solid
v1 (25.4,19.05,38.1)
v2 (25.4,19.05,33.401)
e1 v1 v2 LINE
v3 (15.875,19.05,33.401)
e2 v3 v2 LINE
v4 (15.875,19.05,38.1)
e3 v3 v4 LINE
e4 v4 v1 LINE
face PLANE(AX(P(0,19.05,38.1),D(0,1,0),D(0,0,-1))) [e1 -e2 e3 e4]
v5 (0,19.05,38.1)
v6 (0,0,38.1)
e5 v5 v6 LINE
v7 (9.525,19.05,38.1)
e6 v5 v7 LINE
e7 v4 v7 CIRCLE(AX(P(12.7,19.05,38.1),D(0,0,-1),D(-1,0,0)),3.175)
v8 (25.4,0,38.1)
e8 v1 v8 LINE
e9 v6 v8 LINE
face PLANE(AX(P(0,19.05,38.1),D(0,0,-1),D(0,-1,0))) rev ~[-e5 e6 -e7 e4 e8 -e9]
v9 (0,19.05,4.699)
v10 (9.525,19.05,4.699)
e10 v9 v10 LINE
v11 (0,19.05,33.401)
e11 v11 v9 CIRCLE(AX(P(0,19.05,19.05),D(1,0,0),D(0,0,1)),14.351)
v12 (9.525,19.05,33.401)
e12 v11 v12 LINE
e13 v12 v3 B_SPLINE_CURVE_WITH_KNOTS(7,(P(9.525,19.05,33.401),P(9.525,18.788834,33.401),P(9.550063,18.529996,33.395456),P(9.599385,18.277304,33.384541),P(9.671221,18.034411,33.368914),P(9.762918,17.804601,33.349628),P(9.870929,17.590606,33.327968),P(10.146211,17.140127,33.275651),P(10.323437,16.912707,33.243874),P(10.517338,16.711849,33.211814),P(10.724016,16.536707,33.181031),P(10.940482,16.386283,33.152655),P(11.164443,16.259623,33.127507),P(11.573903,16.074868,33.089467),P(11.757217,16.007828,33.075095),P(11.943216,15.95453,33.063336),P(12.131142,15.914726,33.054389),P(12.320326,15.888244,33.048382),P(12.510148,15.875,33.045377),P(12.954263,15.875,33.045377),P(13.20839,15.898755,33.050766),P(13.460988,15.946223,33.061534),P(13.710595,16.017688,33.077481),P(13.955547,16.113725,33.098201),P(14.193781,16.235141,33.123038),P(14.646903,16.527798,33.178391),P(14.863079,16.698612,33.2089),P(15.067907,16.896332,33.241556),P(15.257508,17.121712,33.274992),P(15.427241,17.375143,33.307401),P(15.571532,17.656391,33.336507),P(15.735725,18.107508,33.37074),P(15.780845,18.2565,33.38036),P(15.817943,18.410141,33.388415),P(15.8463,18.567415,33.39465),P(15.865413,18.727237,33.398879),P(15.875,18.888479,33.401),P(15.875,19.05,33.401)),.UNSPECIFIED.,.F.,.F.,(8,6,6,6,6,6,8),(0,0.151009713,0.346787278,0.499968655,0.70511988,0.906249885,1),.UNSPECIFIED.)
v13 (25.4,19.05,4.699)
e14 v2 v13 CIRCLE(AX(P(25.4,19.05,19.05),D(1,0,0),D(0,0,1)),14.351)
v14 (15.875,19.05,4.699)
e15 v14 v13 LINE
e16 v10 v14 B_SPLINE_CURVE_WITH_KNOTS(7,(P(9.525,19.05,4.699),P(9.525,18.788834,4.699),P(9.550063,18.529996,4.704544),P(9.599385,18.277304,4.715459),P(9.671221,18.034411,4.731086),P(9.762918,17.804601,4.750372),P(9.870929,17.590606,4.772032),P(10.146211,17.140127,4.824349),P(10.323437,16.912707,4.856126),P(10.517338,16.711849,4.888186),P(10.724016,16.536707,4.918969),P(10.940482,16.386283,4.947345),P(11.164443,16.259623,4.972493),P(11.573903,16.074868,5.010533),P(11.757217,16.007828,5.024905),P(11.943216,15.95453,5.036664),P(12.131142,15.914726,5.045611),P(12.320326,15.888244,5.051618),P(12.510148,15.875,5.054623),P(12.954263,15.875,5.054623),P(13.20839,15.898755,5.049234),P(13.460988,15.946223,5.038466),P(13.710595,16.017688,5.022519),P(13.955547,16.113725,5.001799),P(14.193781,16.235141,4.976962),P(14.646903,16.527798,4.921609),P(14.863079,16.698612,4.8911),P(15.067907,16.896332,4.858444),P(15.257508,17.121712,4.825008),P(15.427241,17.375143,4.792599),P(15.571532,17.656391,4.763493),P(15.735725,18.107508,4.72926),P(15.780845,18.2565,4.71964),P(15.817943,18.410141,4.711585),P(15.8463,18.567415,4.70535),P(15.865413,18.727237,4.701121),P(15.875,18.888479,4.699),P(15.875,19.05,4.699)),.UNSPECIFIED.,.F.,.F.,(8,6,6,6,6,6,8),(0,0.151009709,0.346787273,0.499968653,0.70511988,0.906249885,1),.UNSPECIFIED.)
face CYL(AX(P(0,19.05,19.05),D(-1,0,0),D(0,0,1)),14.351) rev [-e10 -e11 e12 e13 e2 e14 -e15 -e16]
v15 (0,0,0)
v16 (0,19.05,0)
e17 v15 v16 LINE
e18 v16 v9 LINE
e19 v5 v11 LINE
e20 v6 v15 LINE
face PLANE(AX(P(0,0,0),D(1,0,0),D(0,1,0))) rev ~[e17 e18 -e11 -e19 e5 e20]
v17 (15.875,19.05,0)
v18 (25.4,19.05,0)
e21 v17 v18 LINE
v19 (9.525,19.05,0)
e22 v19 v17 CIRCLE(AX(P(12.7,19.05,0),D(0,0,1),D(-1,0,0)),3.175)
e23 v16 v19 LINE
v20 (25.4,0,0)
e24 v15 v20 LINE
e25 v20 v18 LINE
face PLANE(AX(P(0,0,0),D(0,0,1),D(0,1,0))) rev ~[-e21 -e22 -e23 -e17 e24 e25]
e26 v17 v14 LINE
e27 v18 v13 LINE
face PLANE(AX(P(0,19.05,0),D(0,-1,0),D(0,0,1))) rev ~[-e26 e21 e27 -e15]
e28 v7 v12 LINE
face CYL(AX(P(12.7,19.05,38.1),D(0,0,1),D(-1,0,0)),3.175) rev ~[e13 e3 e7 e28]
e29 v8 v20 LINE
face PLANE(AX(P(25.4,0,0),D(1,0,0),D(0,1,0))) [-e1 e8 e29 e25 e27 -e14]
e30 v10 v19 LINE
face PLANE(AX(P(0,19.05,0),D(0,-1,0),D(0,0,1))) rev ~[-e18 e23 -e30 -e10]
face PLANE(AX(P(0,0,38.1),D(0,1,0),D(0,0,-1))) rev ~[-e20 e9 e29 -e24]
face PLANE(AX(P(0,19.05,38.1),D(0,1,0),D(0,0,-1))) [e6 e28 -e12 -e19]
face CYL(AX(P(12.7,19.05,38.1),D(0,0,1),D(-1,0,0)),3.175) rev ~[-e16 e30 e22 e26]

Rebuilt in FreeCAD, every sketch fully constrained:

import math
import FreeCAD as App
import Part
import Sketcher

V = App.Vector
Q = App.Units.Quantity

doc = App.newDocument("Part")
params = doc.addObject("Spreadsheet::Sheet", "Params")
for row, (alias, value) in enumerate([
    ("sketch1_height", "1.5 in"),
    ("sketch1_radius", "0.565 in"),
    ("sketch1_width", "0.75 in"),
    ("pad1_length", "1 in"),
    ("sketch2_diameter", "0.25 in"),
    ("pocket1_length", "1.5 in"),
], start=1):
    params.set(f"A{row}", alias)
    params.set(f"B{row}", "=" + value)
    params.setAlias(f"B{row}", alias)

body = doc.addObject("PartDesign::Body", "Body")

# Sketch on YZ plane
sketch1 = body.newObject("Sketcher::SketchObject", "Sketch")
sketch1.AttachmentSupport = (doc.getObject("YZ_Plane"), [""])
sketch1.MapMode = "FlatFace"
sketch1.addGeometry([
    Part.LineSegment(V(19.05, 33.401, 0), V(19.05, 38.1, 0)),  # 0
    Part.LineSegment(V(19.05, 38.1, 0), V(0, 38.1, 0)),  # 1
    Part.LineSegment(V(0, 38.1, 0), V(0, 0, 0)),  # 2
    Part.LineSegment(V(0, 0, 0), V(19.05, 0, 0)),  # 3
    Part.LineSegment(V(19.05, 0, 0), V(19.05, 4.699, 0)),  # 4
    Part.ArcOfCircle(Part.Circle(V(19.05, 19.05, 0), V(0, 0, 1), 14.351), math.radians(90), math.radians(270)),  # 5
], False)
sketch1.addConstraint([
    Sketcher.Constraint("Coincident", 0, 2, 1, 1),
    Sketcher.Constraint("Coincident", 1, 2, 2, 1),
    Sketcher.Constraint("Coincident", 2, 2, 3, 1),
    Sketcher.Constraint("Coincident", 3, 2, 4, 1),
    Sketcher.Constraint("Coincident", 4, 2, 5, 2),
    Sketcher.Constraint("Coincident", 5, 1, 0, 1),
    Sketcher.Constraint("Vertical", 0),
    Sketcher.Constraint("Horizontal", 1),
    Sketcher.Constraint("Vertical", 2),
    Sketcher.Constraint("Horizontal", 3),
    Sketcher.Constraint("Vertical", 4),
    Sketcher.Constraint("Coincident", 2, 2, -1, 1),
    Sketcher.Constraint("Vertical", 5, 3, 0, 2),
    Sketcher.Constraint("Vertical", 0, 2, 3, 2),
    Sketcher.Constraint("Equal", 0, 4),
    Sketcher.Constraint("DistanceY", 2, 2, 2, 1, Q("1.5 in")),
    Sketcher.Constraint("Radius", 5, Q("0.565 in")),
    Sketcher.Constraint("DistanceX", 1, 2, 1, 1, Q("0.75 in")),
])
sketch1.setExpression("Constraints[15]", "Params.sketch1_height")
sketch1.setExpression("Constraints[16]", "Params.sketch1_radius")
sketch1.setExpression("Constraints[17]", "Params.sketch1_width")
pad1 = body.newObject("PartDesign::Pad", "Pad")
pad1.Profile = sketch1
pad1.setExpression("Length", "Params.pad1_length")

# Sketch on XY plane
sketch2 = body.newObject("Sketcher::SketchObject", "Sketch001")
sketch2.AttachmentSupport = (doc.getObject("XY_Plane"), [""])
sketch2.MapMode = "FlatFace"
sketch2.AttachmentOffset = App.Placement(V(0, 0, 1.5 * 25.4), App.Rotation())
sketch2.addGeometry(Part.Circle(V(12.7, 19.05, 0), V(0, 0, 1), 3.175), False)
sketch2.addConstraint([
    Sketcher.Constraint("Diameter", 0, Q("0.25 in")),
    Sketcher.Constraint("DistanceX", -1, 1, 0, 3, Q("0.5 in")),
    Sketcher.Constraint("DistanceY", -1, 1, 0, 3, Q("0.75 in")),
])
sketch2.setExpression("Constraints[0]", "Params.sketch2_diameter")
pocket1 = body.newObject("PartDesign::Pocket", "Pocket")
pocket1.Profile = sketch2
pocket1.setExpression("Length", "Params.pocket1_length")

doc.recompute()
